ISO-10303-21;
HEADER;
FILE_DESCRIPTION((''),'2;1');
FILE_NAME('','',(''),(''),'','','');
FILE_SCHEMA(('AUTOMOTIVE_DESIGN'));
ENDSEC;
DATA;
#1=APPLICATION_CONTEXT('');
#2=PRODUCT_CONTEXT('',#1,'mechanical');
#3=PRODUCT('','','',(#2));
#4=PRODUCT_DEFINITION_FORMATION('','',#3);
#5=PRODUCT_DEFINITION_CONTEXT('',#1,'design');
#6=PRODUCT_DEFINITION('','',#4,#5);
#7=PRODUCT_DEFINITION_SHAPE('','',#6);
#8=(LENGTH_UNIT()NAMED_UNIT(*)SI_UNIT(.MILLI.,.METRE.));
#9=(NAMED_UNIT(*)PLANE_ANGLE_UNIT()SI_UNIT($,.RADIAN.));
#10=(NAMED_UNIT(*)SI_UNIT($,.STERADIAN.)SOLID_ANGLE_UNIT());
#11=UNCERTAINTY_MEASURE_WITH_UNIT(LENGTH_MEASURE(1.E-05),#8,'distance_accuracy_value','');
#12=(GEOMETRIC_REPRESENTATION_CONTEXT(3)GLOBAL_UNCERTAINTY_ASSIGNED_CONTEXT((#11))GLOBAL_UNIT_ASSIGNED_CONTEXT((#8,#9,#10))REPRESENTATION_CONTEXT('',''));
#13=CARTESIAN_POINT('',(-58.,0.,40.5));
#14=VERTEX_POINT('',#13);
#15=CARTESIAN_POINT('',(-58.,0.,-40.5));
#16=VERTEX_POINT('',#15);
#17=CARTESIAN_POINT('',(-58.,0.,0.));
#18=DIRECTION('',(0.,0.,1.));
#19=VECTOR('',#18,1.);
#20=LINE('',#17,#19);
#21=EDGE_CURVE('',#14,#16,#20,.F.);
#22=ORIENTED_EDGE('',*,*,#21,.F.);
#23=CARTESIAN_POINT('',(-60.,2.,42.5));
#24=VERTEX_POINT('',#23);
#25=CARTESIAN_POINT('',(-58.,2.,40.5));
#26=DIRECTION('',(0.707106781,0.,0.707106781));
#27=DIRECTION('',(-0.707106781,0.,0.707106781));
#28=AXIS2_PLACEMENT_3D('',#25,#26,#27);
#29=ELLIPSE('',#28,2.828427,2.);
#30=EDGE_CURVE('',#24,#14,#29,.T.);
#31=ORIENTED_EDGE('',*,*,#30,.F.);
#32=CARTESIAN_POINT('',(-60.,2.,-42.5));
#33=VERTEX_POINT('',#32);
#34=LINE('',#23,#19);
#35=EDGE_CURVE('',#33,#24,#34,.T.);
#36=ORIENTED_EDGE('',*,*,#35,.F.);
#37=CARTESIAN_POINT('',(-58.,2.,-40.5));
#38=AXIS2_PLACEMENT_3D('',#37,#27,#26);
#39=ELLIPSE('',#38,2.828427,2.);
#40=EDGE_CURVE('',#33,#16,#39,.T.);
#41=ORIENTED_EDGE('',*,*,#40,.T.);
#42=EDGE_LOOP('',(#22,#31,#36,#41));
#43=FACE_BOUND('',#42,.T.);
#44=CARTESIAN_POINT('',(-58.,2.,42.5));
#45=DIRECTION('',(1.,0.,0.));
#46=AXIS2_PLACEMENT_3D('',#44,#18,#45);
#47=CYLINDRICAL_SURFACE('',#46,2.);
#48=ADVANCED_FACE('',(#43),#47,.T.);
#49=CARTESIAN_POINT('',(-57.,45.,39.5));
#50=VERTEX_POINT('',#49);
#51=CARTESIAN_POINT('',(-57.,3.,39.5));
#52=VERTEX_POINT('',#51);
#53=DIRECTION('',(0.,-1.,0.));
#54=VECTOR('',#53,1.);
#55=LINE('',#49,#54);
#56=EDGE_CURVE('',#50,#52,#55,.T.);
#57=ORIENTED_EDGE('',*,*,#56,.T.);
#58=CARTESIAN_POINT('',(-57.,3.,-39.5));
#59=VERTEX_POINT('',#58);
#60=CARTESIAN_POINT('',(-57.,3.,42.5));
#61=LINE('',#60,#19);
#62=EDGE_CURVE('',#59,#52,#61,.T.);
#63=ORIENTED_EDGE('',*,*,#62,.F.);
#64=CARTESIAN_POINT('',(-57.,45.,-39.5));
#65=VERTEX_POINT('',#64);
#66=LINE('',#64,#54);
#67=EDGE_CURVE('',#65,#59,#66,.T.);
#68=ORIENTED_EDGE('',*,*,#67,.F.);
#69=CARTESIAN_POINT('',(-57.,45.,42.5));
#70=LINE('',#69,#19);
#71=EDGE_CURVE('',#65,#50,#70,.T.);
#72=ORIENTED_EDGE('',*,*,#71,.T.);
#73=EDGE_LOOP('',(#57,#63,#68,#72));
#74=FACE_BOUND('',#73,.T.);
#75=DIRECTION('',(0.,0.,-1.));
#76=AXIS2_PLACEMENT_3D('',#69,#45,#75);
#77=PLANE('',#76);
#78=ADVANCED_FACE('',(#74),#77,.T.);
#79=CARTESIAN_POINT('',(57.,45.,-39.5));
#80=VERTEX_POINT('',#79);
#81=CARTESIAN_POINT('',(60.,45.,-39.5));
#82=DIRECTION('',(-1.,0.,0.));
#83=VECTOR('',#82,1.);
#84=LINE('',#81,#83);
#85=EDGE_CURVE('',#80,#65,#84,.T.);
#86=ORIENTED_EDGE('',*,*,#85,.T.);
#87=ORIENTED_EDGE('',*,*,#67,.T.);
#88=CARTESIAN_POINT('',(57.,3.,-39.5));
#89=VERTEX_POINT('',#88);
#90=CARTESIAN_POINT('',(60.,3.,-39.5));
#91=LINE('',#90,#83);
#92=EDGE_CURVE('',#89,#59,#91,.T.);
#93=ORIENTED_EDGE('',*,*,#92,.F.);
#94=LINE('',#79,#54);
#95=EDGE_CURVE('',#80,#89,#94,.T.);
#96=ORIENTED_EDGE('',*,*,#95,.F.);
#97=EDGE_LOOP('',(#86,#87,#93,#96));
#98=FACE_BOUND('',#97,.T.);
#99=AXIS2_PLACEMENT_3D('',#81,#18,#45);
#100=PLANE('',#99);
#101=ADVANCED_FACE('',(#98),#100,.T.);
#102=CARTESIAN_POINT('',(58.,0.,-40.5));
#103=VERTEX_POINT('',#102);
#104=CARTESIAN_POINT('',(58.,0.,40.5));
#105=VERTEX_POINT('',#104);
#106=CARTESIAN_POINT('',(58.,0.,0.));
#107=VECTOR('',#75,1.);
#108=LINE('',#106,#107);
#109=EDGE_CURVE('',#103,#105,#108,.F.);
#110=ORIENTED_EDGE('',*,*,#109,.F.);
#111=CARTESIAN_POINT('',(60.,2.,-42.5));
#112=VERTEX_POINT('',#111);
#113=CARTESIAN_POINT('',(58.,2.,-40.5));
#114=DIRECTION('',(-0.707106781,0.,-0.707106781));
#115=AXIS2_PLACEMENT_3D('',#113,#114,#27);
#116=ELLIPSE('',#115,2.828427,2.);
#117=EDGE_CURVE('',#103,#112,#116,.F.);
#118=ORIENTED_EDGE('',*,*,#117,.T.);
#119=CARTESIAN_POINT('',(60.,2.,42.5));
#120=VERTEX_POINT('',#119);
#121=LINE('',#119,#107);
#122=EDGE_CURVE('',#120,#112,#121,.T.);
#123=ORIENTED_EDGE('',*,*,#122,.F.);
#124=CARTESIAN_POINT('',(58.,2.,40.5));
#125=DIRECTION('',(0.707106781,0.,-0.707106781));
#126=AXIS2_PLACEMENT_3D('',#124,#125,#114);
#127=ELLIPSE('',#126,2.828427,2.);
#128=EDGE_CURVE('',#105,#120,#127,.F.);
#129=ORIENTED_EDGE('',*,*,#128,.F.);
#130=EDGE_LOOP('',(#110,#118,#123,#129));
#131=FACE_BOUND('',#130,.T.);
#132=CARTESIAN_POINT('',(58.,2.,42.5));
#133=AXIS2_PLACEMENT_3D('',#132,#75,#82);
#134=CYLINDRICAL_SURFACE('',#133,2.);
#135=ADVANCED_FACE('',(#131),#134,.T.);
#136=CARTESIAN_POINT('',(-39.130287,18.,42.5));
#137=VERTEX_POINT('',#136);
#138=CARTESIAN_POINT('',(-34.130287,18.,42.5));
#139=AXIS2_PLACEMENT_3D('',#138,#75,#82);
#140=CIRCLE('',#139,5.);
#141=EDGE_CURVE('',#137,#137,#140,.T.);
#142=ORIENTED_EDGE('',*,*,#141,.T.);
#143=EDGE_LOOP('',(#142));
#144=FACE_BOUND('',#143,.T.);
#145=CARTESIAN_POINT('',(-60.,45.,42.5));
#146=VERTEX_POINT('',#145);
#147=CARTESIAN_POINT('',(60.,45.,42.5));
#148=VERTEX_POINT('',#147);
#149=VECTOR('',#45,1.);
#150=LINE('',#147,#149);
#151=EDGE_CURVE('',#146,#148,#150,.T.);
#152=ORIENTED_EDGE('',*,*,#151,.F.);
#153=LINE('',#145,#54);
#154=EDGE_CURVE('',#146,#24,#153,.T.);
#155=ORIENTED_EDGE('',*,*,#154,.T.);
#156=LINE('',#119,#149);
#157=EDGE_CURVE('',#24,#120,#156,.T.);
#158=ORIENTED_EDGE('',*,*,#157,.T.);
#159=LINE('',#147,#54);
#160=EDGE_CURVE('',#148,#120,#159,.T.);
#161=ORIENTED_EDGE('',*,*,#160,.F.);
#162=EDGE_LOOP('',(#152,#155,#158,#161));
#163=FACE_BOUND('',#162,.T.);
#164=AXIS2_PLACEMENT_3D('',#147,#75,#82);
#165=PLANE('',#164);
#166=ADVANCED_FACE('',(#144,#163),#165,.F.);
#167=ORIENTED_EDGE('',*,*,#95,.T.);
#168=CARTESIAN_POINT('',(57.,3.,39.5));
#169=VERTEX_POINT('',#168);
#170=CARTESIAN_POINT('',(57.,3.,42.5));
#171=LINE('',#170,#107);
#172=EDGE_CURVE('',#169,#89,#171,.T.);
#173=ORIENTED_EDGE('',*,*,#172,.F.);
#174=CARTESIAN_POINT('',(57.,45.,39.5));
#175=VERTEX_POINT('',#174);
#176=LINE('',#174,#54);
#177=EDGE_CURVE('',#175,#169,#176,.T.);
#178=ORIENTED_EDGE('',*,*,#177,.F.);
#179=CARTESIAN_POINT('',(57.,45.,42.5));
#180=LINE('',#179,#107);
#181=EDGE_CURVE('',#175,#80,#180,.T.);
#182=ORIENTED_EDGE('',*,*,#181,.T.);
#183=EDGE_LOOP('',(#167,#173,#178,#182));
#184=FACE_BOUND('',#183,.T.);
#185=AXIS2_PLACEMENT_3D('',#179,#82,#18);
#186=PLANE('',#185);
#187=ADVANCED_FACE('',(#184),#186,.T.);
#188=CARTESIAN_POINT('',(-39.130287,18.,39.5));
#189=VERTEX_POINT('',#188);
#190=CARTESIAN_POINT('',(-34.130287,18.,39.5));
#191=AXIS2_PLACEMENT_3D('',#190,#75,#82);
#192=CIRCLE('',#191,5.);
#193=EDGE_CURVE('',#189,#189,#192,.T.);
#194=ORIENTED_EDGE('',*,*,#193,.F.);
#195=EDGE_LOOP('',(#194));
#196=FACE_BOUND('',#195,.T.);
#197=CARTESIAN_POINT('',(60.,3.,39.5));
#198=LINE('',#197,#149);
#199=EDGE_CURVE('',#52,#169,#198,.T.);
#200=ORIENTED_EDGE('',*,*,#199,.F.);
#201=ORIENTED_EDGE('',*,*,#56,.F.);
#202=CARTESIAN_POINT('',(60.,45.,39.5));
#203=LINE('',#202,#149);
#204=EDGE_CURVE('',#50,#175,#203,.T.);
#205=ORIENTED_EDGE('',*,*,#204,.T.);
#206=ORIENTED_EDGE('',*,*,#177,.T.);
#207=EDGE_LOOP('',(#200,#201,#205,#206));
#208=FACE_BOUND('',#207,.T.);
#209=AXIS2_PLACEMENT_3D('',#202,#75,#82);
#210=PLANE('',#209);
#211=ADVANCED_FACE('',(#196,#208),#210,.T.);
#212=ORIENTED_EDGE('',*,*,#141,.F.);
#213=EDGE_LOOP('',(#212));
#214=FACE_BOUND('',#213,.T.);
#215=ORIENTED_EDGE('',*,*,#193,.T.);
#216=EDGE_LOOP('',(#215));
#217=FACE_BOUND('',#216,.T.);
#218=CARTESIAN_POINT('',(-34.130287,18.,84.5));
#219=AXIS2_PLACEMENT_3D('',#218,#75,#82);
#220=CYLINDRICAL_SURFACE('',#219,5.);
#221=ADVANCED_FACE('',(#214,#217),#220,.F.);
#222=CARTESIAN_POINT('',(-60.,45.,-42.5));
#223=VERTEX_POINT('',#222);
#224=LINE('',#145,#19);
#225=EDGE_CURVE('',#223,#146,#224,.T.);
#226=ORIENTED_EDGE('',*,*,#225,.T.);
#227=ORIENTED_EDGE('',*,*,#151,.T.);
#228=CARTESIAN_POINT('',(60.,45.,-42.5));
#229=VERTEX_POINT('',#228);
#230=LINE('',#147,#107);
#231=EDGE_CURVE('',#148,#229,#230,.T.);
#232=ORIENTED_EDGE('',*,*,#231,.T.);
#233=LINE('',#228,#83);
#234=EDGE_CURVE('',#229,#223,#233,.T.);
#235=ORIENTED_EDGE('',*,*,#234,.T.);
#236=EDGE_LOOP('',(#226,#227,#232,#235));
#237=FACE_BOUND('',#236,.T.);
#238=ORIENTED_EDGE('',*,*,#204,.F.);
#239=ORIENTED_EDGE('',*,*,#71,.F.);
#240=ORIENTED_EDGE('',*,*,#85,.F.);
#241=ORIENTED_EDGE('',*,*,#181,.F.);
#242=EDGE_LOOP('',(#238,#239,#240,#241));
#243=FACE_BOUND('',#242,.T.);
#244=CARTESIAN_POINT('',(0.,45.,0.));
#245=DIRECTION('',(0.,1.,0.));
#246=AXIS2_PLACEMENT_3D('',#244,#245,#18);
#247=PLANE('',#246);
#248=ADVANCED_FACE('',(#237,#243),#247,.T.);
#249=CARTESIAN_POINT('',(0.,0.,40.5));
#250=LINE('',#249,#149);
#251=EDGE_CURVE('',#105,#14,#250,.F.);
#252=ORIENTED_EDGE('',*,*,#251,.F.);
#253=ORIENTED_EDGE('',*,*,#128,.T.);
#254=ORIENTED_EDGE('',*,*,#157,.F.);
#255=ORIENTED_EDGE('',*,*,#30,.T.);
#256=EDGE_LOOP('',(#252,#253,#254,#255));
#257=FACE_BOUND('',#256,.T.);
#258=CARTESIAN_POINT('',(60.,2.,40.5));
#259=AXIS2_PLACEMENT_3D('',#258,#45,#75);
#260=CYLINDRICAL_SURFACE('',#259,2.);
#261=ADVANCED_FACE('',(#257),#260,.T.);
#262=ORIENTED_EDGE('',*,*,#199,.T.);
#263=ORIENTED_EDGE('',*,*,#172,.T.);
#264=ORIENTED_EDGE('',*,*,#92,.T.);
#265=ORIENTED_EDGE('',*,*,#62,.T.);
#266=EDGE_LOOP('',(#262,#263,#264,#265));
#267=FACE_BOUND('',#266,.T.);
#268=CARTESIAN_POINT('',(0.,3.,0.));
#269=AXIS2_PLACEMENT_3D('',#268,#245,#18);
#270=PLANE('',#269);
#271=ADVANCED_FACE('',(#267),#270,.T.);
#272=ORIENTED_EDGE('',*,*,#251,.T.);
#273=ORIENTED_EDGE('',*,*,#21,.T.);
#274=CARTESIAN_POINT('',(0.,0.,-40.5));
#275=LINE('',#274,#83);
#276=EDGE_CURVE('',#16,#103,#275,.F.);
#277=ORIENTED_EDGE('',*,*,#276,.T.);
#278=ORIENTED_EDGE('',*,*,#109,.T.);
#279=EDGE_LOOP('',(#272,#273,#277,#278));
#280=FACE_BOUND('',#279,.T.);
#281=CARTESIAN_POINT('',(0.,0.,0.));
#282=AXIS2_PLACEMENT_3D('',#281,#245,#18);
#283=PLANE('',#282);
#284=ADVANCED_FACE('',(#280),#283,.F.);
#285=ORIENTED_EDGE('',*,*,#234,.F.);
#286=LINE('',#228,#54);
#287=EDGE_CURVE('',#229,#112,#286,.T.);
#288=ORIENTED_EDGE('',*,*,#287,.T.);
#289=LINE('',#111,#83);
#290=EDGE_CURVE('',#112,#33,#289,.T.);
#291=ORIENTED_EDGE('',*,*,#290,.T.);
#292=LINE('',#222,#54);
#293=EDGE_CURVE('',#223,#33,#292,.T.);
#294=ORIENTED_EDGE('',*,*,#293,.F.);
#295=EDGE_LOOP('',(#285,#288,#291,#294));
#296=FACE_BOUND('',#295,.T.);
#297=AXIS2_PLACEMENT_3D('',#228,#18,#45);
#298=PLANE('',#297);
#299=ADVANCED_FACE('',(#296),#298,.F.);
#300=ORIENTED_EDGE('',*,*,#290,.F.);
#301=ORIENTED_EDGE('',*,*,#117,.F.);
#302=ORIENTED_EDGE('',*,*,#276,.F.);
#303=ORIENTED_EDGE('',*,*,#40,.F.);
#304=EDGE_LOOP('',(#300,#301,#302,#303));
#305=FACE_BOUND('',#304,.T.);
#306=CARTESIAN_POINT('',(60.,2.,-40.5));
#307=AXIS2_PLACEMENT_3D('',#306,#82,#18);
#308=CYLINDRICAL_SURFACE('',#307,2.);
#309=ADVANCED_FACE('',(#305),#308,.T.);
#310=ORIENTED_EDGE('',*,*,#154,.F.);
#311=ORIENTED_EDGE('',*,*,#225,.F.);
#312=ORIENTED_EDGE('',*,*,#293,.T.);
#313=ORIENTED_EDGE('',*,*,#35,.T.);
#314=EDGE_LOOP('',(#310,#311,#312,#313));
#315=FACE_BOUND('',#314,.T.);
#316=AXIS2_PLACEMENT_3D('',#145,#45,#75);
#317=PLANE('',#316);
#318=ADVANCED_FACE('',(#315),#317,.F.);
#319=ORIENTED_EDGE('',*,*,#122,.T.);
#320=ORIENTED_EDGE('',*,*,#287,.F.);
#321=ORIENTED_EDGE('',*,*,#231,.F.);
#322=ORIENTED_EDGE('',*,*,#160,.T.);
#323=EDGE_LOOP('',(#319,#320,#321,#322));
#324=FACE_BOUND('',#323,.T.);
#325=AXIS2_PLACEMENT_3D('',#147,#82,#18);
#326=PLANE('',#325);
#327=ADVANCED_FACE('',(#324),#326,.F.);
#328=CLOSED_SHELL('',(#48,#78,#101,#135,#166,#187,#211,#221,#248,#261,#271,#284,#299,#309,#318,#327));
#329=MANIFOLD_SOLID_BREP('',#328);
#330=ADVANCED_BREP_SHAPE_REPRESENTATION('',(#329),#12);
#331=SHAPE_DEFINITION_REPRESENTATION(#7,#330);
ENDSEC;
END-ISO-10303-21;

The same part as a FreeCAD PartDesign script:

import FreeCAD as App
import Part
import Sketcher
from FreeCAD import Vector
Q = App.Units.Quantity


def edges_at(feature, points):
    """Names of the edges that pass closest to the given points."""
    edges = feature.Shape.Edges
    near = lambda p: min(range(len(edges)), key=lambda i: edges[i].distToShape(Part.Vertex(*p))[0])
    return sorted({f"Edge{near(p) + 1}" for p in points})


def faces_at(feature, points):
    """Names of the faces that lie closest to the given points."""
    faces = feature.Shape.Faces
    near = lambda p: min(range(len(faces)), key=lambda i: faces[i].distToShape(Part.Vertex(*p))[0])
    return sorted({f"Face{near(p) + 1}" for p in points})


def add_polygon(sketch, points):
    """Adds a closed chain of lines whose ends are joined by coincident constraints."""
    first, n = sketch.GeometryCount, len(points)
    for a, b in zip(points, points[1:] + points[:1]):
        sketch.addGeometry(Part.LineSegment(App.Vector(*a, 0), App.Vector(*b, 0)), False)
    for i in range(n):
        sketch.addConstraint(Sketcher.Constraint("Coincident", first + i, 2, first + (i + 1) % n, 1))

doc = App.newDocument("Part")
params = doc.addObject("Spreadsheet::Sheet", "Params")
for row, (alias, value) in enumerate([
    ("sketch1_width", "120 mm"),
    ("sketch1_height", "85 mm"),
    ("pad1_length", "45 mm"),
    ("thickness_wall", "3 mm"),
    ("sketch2_diameter", "10 mm"),
    ("pocket1_length", "45 mm"),
    ("fillet_radius", "2 mm"),
], start=1):
    params.set(f"A{row}", alias)
    params.set(f"B{row}", "=" + value)
    params.setAlias(f"B{row}", alias)

body = doc.addObject("PartDesign::Body", "Body")

sketch1 = body.newObject("Sketcher::SketchObject", "Sketch")
sketch1.AttachmentSupport = (doc.getObject("XZ_Plane"), [""])
sketch1.MapMode = "FlatFace"
add_polygon(sketch1, [(-60, -42), (-60, 42), (60, 42), (60, -42)])
sketch1.addConstraint(Sketcher.Constraint("Vertical", 0))
sketch1.addConstraint(Sketcher.Constraint("Horizontal", 1))
sketch1.addConstraint(Sketcher.Constraint("Vertical", 2))
sketch1.addConstraint(Sketcher.Constraint("Horizontal", 3))
sketch1.addConstraint(Sketcher.Constraint("Symmetric", 0, 2, 2, 2, -1, 1))
sketch1.addConstraint(Sketcher.Constraint("DistanceX", 1, 1, 1, 2, Q("120 mm")))
sketch1.addConstraint(Sketcher.Constraint("DistanceY", 0, 1, 0, 2, Q("85 mm")))
sketch1.setExpression("Constraints[9]", "Params.sketch1_width")
sketch1.setExpression("Constraints[10]", "Params.sketch1_height")
pad1 = body.newObject("PartDesign::Pad", "Pad")
pad1.Profile = sketch1
pad1.setExpression("Length", "Params.pad1_length")
pad1.Reversed = True
doc.recompute()

thickness = body.newObject("PartDesign::Thickness", "Thickness")
thickness.Base = (pad1, faces_at(pad1, [(0, 45, 0)]))
thickness.setExpression("Value", "Params.thickness_wall")
thickness.Reversed = True
thickness.Join = "Intersection"

sketch2 = body.newObject("Sketcher::SketchObject", "Sketch001")
sketch2.AttachmentSupport = (doc.getObject("XY_Plane"), [""])
sketch2.MapMode = "FlatFace"
sketch2.AttachmentOffset = App.Placement(Vector(0, 0, 39.5), App.Rotation())
sketch2.addGeometry(Part.Circle(Vector(-34, 18, 0), Vector(0, 0, 1), 5), False)
sketch2.addConstraint(Sketcher.Constraint("Diameter", 0, Q("10 mm")))
sketch2.addConstraint(Sketcher.Constraint("DistanceY", -1, 1, 0, 3, Q("18 mm")))
sketch2.addConstraint(Sketcher.Constraint("DistanceX", 0, 3, -1, 1, Q("34.130287 mm")))
sketch2.setExpression("Constraints[0]", "Params.sketch2_diameter")
pocket1 = body.newObject("PartDesign::Pocket", "Pocket")
pocket1.Profile = sketch2
pocket1.setExpression("Length", "Params.pocket1_length")
pocket1.Reversed = True
doc.recompute()

fillet = body.newObject("PartDesign::Fillet", "Fillet")
fillet.Base = (pocket1, edges_at(pocket1, [
    (0, 0, -42.5),
    (60, 0, 0),
    (0, 0, 42.5),
    (-60, 0, 0),
]))
fillet.setExpression("Radius", "Params.fillet_radius")

doc.recompute()
